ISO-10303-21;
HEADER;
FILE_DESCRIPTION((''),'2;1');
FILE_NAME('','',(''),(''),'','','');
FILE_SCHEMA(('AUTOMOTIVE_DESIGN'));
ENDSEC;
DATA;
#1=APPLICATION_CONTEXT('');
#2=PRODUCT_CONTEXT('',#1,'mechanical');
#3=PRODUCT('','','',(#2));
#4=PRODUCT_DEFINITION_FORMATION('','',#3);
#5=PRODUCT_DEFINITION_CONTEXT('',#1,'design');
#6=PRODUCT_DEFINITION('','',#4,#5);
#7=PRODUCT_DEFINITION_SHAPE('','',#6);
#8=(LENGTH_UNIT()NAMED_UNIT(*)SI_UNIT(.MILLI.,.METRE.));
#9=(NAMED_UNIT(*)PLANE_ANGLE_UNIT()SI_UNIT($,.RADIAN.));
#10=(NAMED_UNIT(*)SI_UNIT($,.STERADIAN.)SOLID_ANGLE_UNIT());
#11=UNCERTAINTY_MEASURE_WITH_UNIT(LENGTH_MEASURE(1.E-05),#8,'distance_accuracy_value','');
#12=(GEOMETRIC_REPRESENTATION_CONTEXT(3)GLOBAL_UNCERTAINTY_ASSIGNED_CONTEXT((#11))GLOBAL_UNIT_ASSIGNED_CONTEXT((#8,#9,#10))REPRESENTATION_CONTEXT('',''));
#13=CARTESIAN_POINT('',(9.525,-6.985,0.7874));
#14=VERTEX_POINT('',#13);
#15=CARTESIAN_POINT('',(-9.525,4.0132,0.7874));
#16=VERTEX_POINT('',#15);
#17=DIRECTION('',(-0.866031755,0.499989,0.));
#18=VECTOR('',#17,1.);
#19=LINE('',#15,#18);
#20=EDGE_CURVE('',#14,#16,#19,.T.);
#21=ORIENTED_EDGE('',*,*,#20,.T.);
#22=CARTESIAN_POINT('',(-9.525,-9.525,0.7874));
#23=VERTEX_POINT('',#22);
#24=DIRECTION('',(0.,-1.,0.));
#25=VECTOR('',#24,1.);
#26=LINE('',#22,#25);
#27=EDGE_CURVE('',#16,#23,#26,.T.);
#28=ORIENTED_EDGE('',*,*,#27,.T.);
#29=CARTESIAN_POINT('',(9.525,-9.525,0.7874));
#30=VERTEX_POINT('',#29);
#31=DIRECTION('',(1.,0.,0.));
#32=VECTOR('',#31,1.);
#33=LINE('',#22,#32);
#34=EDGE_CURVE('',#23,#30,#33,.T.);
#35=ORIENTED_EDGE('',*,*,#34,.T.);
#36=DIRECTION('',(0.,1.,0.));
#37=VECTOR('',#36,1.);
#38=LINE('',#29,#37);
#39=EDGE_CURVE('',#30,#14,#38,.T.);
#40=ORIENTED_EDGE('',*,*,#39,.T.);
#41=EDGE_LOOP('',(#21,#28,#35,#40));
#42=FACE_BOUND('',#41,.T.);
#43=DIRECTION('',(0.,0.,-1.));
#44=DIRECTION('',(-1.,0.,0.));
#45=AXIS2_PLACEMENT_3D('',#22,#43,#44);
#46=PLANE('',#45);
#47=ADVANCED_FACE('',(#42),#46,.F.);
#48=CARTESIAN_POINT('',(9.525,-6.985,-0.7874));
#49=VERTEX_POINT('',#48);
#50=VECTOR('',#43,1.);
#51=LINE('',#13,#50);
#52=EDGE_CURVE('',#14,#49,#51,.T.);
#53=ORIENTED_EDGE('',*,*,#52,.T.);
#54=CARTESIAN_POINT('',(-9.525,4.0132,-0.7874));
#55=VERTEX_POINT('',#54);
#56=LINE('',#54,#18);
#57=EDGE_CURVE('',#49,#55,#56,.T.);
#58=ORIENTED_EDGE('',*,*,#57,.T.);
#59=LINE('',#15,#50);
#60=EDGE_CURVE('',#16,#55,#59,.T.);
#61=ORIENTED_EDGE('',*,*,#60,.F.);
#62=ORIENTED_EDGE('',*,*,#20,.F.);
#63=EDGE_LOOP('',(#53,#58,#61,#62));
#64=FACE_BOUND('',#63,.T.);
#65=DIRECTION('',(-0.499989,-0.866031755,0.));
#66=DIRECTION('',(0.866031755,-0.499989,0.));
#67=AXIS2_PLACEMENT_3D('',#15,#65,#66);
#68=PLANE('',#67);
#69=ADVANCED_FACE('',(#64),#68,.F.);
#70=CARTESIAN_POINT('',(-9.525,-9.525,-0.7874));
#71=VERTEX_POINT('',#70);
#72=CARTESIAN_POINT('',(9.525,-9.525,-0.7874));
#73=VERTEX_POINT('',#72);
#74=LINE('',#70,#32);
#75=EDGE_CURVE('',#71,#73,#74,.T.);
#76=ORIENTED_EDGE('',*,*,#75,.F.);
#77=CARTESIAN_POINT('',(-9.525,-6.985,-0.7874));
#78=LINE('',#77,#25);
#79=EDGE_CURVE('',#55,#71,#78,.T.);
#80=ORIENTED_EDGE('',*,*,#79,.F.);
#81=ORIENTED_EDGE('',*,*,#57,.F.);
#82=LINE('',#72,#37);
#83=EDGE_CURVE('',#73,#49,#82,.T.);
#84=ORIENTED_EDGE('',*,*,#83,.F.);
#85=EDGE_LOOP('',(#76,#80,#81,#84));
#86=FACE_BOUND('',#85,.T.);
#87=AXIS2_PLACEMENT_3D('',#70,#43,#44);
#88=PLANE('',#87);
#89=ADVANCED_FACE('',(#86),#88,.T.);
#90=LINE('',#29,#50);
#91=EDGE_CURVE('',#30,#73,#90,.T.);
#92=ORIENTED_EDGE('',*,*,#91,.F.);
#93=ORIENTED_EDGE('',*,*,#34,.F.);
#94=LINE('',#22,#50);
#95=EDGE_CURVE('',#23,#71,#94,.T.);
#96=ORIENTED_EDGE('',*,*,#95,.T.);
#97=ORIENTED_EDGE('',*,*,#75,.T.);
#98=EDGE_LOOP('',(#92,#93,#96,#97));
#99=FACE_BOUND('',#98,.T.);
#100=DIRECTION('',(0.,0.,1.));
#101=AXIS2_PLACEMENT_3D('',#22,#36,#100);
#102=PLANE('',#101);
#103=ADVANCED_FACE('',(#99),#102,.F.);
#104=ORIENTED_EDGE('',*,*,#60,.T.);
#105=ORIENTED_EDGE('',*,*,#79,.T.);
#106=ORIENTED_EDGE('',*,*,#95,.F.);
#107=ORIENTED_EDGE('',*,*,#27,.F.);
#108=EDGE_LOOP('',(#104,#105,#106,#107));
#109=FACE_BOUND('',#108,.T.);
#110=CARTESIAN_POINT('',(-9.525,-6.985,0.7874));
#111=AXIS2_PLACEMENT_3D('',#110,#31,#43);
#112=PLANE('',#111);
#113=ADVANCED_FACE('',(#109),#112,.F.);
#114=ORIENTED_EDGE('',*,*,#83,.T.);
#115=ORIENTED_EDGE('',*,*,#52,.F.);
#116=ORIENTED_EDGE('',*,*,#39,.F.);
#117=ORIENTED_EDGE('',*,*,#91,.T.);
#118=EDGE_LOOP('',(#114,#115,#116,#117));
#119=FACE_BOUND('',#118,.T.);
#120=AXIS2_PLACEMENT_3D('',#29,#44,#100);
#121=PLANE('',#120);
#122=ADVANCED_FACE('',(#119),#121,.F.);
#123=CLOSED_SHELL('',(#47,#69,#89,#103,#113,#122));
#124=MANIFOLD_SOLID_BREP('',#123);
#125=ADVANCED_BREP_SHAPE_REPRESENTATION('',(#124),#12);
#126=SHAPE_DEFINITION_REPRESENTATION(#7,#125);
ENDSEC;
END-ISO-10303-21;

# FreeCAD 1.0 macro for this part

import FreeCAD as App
import Part
import Sketcher

V = App.Vector
Q = App.Units.Quantity


def add_polygon(sketch, points):
    """Adds a closed chain of lines whose ends are joined by coincident constraints."""
    first, n = sketch.GeometryCount, len(points)
    for a, b in zip(points, points[1:] + points[:1]):
        sketch.addGeometry(Part.LineSegment(App.Vector(*a, 0), App.Vector(*b, 0)), False)
    for i in range(n):
        sketch.addConstraint(Sketcher.Constraint("Coincident", first + i, 2, first + (i + 1) % n, 1))

doc = App.newDocument("Part")
body = doc.addObject("PartDesign::Body", "Body")

# Sketch on XY plane
sketch1 = body.newObject("Sketcher::SketchObject", "Sketch")
sketch1.AttachmentSupport = (doc.getObject("XY_Plane"), [""])
sketch1.MapMode = "FlatFace"
add_polygon(sketch1, [(9.525, -6.985), (-9.525, 4.0132), (-9.525, -9.525), (9.525, -9.525)])  # lines 0-3
sketch1.addConstraint([
    Sketcher.Constraint("Vertical", 1),
    Sketcher.Constraint("Horizontal", 2),
    Sketcher.Constraint("Vertical", 3),
    Sketcher.Constraint("DistanceY", 3, 1, 3, 2, Q("0.1 in")),
    Sketcher.Constraint("DistanceX", 2, 1, 2, 2, Q("0.75 in")),
    Sketcher.Constraint("DistanceY", 1, 2, 1, 1, Q("0.533 in")),
    Sketcher.Constraint("DistanceX", 0, 2, -1, 1, Q("0.375 in")),
    Sketcher.Constraint("DistanceY", -1, 1, 0, 2, Q("0.158 in")),
])
pad1 = body.newObject("PartDesign::Pad", "Pad")
pad1.Profile = sketch1
pad1.Length = Q("0.062 in")
pad1.Midplane = True

doc.recompute()
